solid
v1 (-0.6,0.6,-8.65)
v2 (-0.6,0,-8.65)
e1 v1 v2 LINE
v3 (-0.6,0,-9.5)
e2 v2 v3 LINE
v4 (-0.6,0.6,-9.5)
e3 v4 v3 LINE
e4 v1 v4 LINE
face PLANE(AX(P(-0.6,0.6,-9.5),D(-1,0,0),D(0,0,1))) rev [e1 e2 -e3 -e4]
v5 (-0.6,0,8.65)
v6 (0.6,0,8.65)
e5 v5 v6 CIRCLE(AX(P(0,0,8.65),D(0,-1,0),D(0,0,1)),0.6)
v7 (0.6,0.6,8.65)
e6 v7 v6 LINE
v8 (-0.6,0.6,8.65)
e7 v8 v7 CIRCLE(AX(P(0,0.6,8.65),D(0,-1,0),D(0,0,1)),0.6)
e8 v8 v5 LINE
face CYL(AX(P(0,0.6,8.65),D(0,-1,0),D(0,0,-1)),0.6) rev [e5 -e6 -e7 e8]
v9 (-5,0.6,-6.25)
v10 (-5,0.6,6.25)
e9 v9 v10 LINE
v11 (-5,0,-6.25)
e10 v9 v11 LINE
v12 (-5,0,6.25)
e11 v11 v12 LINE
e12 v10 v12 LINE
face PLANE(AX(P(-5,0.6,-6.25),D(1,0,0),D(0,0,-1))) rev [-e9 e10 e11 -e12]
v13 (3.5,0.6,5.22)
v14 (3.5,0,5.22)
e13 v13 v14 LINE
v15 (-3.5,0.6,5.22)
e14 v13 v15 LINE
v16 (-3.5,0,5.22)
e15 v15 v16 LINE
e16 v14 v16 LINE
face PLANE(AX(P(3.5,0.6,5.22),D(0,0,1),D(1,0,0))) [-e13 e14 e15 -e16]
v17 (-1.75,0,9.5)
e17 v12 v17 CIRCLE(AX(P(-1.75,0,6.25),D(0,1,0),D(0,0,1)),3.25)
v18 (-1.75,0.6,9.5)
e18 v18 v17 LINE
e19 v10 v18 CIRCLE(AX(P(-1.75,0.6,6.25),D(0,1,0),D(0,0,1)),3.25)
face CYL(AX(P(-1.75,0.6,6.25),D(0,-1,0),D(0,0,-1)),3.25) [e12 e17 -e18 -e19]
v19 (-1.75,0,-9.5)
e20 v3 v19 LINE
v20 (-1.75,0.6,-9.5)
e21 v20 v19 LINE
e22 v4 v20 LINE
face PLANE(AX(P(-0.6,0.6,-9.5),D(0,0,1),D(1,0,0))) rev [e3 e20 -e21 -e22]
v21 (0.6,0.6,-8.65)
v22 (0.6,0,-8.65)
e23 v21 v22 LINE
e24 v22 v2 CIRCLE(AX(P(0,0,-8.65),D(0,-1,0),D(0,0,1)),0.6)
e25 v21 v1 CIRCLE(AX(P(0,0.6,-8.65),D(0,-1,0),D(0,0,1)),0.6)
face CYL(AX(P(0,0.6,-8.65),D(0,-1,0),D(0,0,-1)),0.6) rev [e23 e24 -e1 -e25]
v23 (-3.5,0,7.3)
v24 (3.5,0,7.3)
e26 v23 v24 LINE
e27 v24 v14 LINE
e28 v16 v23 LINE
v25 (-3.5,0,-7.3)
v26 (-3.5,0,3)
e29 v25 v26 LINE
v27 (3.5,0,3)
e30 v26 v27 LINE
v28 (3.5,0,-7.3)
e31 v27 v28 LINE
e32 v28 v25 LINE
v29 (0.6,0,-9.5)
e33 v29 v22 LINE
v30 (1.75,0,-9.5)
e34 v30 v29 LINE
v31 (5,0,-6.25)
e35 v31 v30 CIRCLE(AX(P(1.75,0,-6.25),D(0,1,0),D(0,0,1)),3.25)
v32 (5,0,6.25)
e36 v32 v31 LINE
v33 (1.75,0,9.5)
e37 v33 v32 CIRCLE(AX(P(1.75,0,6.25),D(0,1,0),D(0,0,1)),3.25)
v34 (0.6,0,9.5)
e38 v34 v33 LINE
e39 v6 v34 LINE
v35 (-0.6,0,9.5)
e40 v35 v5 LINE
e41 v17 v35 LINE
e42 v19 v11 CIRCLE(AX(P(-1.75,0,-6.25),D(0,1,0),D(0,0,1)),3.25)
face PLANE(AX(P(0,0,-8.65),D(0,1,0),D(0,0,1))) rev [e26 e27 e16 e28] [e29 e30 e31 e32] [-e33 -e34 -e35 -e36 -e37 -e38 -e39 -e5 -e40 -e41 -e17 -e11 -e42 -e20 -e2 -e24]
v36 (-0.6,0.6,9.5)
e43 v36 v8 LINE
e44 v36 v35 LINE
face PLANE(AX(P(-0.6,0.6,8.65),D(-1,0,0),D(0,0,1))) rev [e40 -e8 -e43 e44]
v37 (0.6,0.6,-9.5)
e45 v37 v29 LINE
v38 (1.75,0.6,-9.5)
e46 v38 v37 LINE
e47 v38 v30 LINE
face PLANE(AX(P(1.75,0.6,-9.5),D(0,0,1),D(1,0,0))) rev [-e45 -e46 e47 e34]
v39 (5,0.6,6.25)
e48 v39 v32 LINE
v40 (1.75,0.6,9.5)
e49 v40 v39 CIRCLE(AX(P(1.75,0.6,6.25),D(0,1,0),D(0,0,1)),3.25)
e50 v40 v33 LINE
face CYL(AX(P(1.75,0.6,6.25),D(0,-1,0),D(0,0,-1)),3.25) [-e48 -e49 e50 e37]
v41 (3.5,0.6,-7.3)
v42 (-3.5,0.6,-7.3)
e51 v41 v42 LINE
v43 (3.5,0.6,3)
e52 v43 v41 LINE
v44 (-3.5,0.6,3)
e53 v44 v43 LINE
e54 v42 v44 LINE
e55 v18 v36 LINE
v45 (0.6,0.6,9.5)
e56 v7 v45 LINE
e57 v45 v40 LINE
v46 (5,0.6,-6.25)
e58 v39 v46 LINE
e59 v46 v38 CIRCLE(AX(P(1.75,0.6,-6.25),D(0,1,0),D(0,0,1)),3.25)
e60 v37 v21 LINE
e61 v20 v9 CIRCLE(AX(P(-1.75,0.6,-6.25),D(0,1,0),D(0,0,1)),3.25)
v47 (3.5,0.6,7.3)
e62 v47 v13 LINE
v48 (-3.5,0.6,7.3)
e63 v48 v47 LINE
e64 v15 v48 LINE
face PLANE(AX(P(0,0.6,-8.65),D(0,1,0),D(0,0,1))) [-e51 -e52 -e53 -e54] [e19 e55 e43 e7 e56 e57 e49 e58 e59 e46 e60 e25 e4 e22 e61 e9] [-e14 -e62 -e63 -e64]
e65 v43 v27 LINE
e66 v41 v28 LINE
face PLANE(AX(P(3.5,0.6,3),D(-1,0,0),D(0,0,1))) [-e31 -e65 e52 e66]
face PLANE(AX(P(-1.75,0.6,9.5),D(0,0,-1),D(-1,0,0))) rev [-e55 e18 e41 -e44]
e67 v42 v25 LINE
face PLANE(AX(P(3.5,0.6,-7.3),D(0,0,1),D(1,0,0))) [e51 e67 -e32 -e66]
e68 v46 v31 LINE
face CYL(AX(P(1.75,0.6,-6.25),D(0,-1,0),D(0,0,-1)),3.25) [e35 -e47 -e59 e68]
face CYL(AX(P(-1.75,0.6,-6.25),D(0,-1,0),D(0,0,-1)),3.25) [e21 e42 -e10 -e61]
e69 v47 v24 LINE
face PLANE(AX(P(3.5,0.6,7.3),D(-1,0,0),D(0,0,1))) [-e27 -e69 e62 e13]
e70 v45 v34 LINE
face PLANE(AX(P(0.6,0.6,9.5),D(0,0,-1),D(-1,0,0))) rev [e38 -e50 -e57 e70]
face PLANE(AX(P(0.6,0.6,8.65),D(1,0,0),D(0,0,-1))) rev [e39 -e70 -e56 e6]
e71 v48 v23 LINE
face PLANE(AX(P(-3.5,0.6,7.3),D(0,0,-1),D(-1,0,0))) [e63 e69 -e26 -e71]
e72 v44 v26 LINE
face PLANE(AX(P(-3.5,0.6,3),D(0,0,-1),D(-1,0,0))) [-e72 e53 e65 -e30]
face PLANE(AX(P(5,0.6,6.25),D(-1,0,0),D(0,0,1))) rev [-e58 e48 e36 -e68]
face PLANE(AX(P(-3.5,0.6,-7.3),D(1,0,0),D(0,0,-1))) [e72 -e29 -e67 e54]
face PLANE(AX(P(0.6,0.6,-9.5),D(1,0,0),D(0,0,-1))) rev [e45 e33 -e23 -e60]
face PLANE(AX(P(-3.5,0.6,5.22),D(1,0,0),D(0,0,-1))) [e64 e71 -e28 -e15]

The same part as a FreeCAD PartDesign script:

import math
import FreeCAD as App
import Part
import Sketcher

doc = App.newDocument("Part")
body = doc.addObject("PartDesign::Body", "Body")

# Sketch on XZ plane
sketch1 = body.newObject("Sketcher::SketchObject", "Sketch")
sketch1.AttachmentSupport = (doc.getObject("XZ_Plane"), [""])
sketch1.MapMode = "FlatFace"
sketch1.addGeometry(Part.LineSegment(App.Vector(-0.6, -9.5, 0), App.Vector(-1.8, -9.5, 0)), False)
sketch1.addGeometry(Part.ArcOfCircle(Part.Circle(App.Vector(-1.8, -6.2, 0), App.Vector(0, 0, 1), 3.2), math.radians(180), math.radians(270)), False)
sketch1.addGeometry(Part.LineSegment(App.Vector(-5, -6.2, 0), App.Vector(-5, 6.2, 0)), False)
sketch1.addGeometry(Part.ArcOfCircle(Part.Circle(App.Vector(-1.8, 6.2, 0), App.Vector(0, 0, 1), 3.2), math.radians(90), math.radians(180)), False)
sketch1.addGeometry(Part.LineSegment(App.Vector(-1.8, 9.5, 0), App.Vector(-0.6, 9.5, 0)), False)
sketch1.addGeometry(Part.LineSegment(App.Vector(-0.6, 9.5, 0), App.Vector(-0.6, 8.7, 0)), False)
sketch1.addGeometry(Part.ArcOfCircle(Part.Circle(App.Vector(0, 8.7, 0), App.Vector(0, 0, 1), 0.6), math.radians(180), math.radians(360)), False)
sketch1.addGeometry(Part.LineSegment(App.Vector(0.6, 8.7, 0), App.Vector(0.6, 9.5, 0)), False)
sketch1.addGeometry(Part.LineSegment(App.Vector(0.6, 9.5, 0), App.Vector(1.8, 9.5, 0)), False)
sketch1.addGeometry(Part.ArcOfCircle(Part.Circle(App.Vector(1.8, 6.2, 0), App.Vector(0, 0, 1), 3.2), math.radians(0), math.radians(90)), False)
sketch1.addGeometry(Part.LineSegment(App.Vector(5, 6.2, 0), App.Vector(5, -6.2, 0)), False)
sketch1.addGeometry(Part.ArcOfCircle(Part.Circle(App.Vector(1.8, -6.2, 0), App.Vector(0, 0, 1), 3.2), math.radians(-90), math.radians(0)), False)
sketch1.addGeometry(Part.LineSegment(App.Vector(1.8, -9.5, 0), App.Vector(0.6, -9.5, 0)), False)
sketch1.addGeometry(Part.LineSegment(App.Vector(0.6, -9.5, 0), App.Vector(0.6, -8.7, 0)), False)
sketch1.addGeometry(Part.ArcOfCircle(Part.Circle(App.Vector(0, -8.7, 0), App.Vector(0, 0, 1), 0.6), math.radians(0), math.radians(180)), False)
sketch1.addGeometry(Part.LineSegment(App.Vector(-0.6, -8.7, 0), App.Vector(-0.6, -9.5, 0)), False)
sketch1.addGeometry(Part.LineSegment(App.Vector(3.5, 7.3, 0), App.Vector(-3.5, 7.3, 0)), False)
sketch1.addGeometry(Part.LineSegment(App.Vector(-3.5, 7.3, 0), App.Vector(-3.5, 5.2, 0)), False)
sketch1.addGeometry(Part.LineSegment(App.Vector(-3.5, 5.2, 0), App.Vector(3.5, 5.2, 0)), False)
sketch1.addGeometry(Part.LineSegment(App.Vector(3.5, 5.2, 0), App.Vector(3.5, 7.3, 0)), False)
sketch1.addGeometry(Part.LineSegment(App.Vector(3.5, 3, 0), App.Vector(-3.5, 3, 0)), False)
sketch1.addGeometry(Part.LineSegment(App.Vector(-3.5, 3, 0), App.Vector(-3.5, -7.3, 0)), False)
sketch1.addGeometry(Part.LineSegment(App.Vector(-3.5, -7.3, 0), App.Vector(3.5, -7.3, 0)), False)
sketch1.addGeometry(Part.LineSegment(App.Vector(3.5, -7.3, 0), App.Vector(3.5, 3, 0)), False)
sketch1.addConstraint(Sketcher.Constraint("Tangent", 0, 2, 1, 2))
sketch1.addConstraint(Sketcher.Constraint("Tangent", 1, 1, 2, 1))
sketch1.addConstraint(Sketcher.Constraint("Tangent", 2, 2, 3, 2))
sketch1.addConstraint(Sketcher.Constraint("Tangent", 3, 1, 4, 1))
sketch1.addConstraint(Sketcher.Constraint("Coincident", 4, 2, 5, 1))
sketch1.addConstraint(Sketcher.Constraint("Tangent", 5, 2, 6, 1))
sketch1.addConstraint(Sketcher.Constraint("Tangent", 6, 2, 7, 1))
sketch1.addConstraint(Sketcher.Constraint("Coincident", 7, 2, 8, 1))
sketch1.addConstraint(Sketcher.Constraint("Tangent", 8, 2, 9, 2))
sketch1.addConstraint(Sketcher.Constraint("Tangent", 9, 1, 10, 1))
sketch1.addConstraint(Sketcher.Constraint("Tangent", 10, 2, 11, 2))
sketch1.addConstraint(Sketcher.Constraint("Tangent", 11, 1, 12, 1))
sketch1.addConstraint(Sketcher.Constraint("Coincident", 12, 2, 13, 1))
sketch1.addConstraint(Sketcher.Constraint("Tangent", 13, 2, 14, 1))
sketch1.addConstraint(Sketcher.Constraint("Tangent", 14, 2, 15, 1))
sketch1.addConstraint(Sketcher.Constraint("Coincident", 15, 2, 0, 1))
sketch1.addConstraint(Sketcher.Constraint("Coincident", 16, 2, 17, 1))
sketch1.addConstraint(Sketcher.Constraint("Coincident", 17, 2, 18, 1))
sketch1.addConstraint(Sketcher.Constraint("Coincident", 18, 2, 19, 1))
sketch1.addConstraint(Sketcher.Constraint("Coincident", 19, 2, 16, 1))
sketch1.addConstraint(Sketcher.Constraint("Coincident", 20, 2, 21, 1))
sketch1.addConstraint(Sketcher.Constraint("Coincident", 21, 2, 22, 1))
sketch1.addConstraint(Sketcher.Constraint("Coincident", 22, 2, 23, 1))
sketch1.addConstraint(Sketcher.Constraint("Coincident", 23, 2, 20, 1))
sketch1.addConstraint(Sketcher.Constraint("Horizontal", 0))
sketch1.addConstraint(Sketcher.Constraint("Vertical", 2))
sketch1.addConstraint(Sketcher.Constraint("Horizontal", 4))
sketch1.addConstraint(Sketcher.Constraint("Vertical", 5))
sketch1.addConstraint(Sketcher.Constraint("Vertical", 7))
sketch1.addConstraint(Sketcher.Constraint("Horizontal", 8))
sketch1.addConstraint(Sketcher.Constraint("Vertical", 10))
sketch1.addConstraint(Sketcher.Constraint("Horizontal", 12))
sketch1.addConstraint(Sketcher.Constraint("Vertical", 13))
sketch1.addConstraint(Sketcher.Constraint("Vertical", 15))
sketch1.addConstraint(Sketcher.Constraint("Horizontal", 16))
sketch1.addConstraint(Sketcher.Constraint("Vertical", 17))
sketch1.addConstraint(Sketcher.Constraint("Horizontal", 18))
sketch1.addConstraint(Sketcher.Constraint("Vertical", 19))
sketch1.addConstraint(Sketcher.Constraint("Horizontal", 20))
sketch1.addConstraint(Sketcher.Constraint("Vertical", 21))
sketch1.addConstraint(Sketcher.Constraint("Horizontal", 22))
sketch1.addConstraint(Sketcher.Constraint("Vertical", 23))
sketch1.addConstraint(Sketcher.Constraint("Equal", 1, 3))
sketch1.addConstraint(Sketcher.Constraint("Equal", 3, 9))
sketch1.addConstraint(Sketcher.Constraint("Equal", 9, 11))
sketch1.addConstraint(Sketcher.Constraint("Equal", 6, 14))
sketch1.addConstraint(Sketcher.Constraint("Symmetric", 1, 3, 9, 3, -1, 1))
sketch1.addConstraint(Sketcher.Constraint("Symmetric", 6, 3, 14, 3, -1, 1))
sketch1.addConstraint(Sketcher.Constraint("Symmetric", 19, 2, 21, 2, -1, 1))
sketch1.addConstraint(Sketcher.Constraint("Symmetric", 4, 2, 7, 2, -2))
sketch1.addConstraint(Sketcher.Constraint("Horizontal", 1, 3, 11, 3))
sketch1.addConstraint(Sketcher.Constraint("Vertical", 17, 2, 20, 2))
sketch1.addConstraint(Sketcher.Constraint("Vertical", 19, 2, 22, 2))
sketch1.addConstraint(Sketcher.Constraint("Radius", 6, 0.6))
sketch1.addConstraint(Sketcher.Constraint("DistanceX", 16, 2, 16, 1, 7.0))
sketch1.addConstraint(Sketcher.Constraint("Radius", 1, 3.25))
sketch1.addConstraint(Sketcher.Constraint("DistanceY", 2, 1, 2, 2, 12.5))
sketch1.addConstraint(Sketcher.Constraint("DistanceY", 21, 2, 21, 1, 10.3))
sketch1.addConstraint(Sketcher.Constraint("DistanceX", 1, 1, -1, 1, 5.0))
sketch1.addConstraint(Sketcher.Constraint("DistanceY", -1, 1, 20, 2, 3.0))
sketch1.addConstraint(Sketcher.Constraint("DistanceY", 5, 2, 5, 1, 0.85))
sketch1.addConstraint(Sketcher.Constraint("DistanceY", 17, 2, 17, 1, 2.08))
pad1 = body.newObject("PartDesign::Pad", "Pad")
pad1.Profile = sketch1
pad1.Length = 0.6
pad1.Reversed = True

doc.recompute()
